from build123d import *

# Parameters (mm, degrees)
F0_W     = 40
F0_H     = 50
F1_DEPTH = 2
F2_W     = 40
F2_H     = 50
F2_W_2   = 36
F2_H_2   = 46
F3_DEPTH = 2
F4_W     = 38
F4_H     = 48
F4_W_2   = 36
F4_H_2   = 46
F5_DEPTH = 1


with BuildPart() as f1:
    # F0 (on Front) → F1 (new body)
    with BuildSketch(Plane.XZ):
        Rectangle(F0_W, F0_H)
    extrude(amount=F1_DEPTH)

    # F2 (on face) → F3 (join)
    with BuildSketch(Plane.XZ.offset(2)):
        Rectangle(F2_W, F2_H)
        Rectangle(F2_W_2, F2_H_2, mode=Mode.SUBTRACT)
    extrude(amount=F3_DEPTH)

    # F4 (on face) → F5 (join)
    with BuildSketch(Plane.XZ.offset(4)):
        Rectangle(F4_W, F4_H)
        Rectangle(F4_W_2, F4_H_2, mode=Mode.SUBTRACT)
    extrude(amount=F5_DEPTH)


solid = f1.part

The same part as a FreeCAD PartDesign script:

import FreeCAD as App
import Part
import Sketcher
Q = App.Units.Quantity


def add_polygon(sketch, points):
    """Adds a closed chain of lines whose ends are joined by coincident constraints."""
    first, n = sketch.GeometryCount, len(points)
    for a, b in zip(points, points[1:] + points[:1]):
        sketch.addGeometry(Part.LineSegment(App.Vector(*a, 0), App.Vector(*b, 0)), False)
    for i in range(n):
        sketch.addConstraint(Sketcher.Constraint("Coincident", first + i, 2, first + (i + 1) % n, 1))

doc = App.newDocument("Part")
params = doc.addObject("Spreadsheet::Sheet", "Params")
for row, (alias, value) in enumerate([
    ("sketch1_width", "40 mm"),
    ("sketch1_height", "50 mm"),
    ("pad1_length", "2 mm"),
    ("sketch2_width", "40 mm"),
    ("sketch2_width2", "36 mm"),
    ("sketch2_height", "50 mm"),
    ("sketch2_height2", "46 mm"),
    ("pad2_length", "2 mm"),
    ("sketch3_width", "38 mm"),
    ("sketch3_width2", "36 mm"),
    ("sketch3_height", "48 mm"),
    ("sketch3_height2", "46 mm"),
    ("pad3_length", "1 mm"),
], start=1):
    params.set(f"A{row}", alias)
    params.set(f"B{row}", "=" + value)
    params.setAlias(f"B{row}", alias)

body = doc.addObject("PartDesign::Body", "Body")

sketch1 = body.newObject("Sketcher::SketchObject", "Sketch")
sketch1.AttachmentSupport = (doc.getObject("XZ_Plane"), [""])
sketch1.MapMode = "FlatFace"
add_polygon(sketch1, [(-20, 25), (-20, -25), (20, -25), (20, 25)])
sketch1.addConstraint([
    Sketcher.Constraint("Vertical", 0),
    Sketcher.Constraint("Horizontal", 1),
    Sketcher.Constraint("Vertical", 2),
    Sketcher.Constraint("Horizontal", 3),
    Sketcher.Constraint("Symmetric", 0, 2, 2, 2, -1, 1),
    Sketcher.Constraint("DistanceX", 1, 1, 1, 2, Q("40 mm")),
    Sketcher.Constraint("DistanceY", 0, 2, 0, 1, Q("50 mm")),
])
sketch1.setExpression("Constraints[9]", "Params.sketch1_width")
sketch1.setExpression("Constraints[10]", "Params.sketch1_height")
pad1 = body.newObject("PartDesign::Pad", "Pad")
pad1.Profile = sketch1
pad1.setExpression("Length", "Params.pad1_length")

sketch2 = body.newObject("Sketcher::SketchObject", "Sketch001")
sketch2.AttachmentSupport = (doc.getObject("XZ_Plane"), [""])
sketch2.MapMode = "FlatFace"
sketch2.AttachmentOffset = App.Placement(App.Vector(0, 0, 2), App.Rotation())
add_polygon(sketch2, [(-20, 25), (-20, -25), (20, -25), (20, 25)])
add_polygon(sketch2, [(18, -23), (-18, -23), (-18, 23), (18, 23)])
sketch2.addConstraint([
    Sketcher.Constraint("Vertical", 0),
    Sketcher.Constraint("Horizontal", 1),
    Sketcher.Constraint("Vertical", 2),
    Sketcher.Constraint("Horizontal", 3),
    Sketcher.Constraint("Horizontal", 4),
    Sketcher.Constraint("Vertical", 5),
    Sketcher.Constraint("Horizontal", 6),
    Sketcher.Constraint("Vertical", 7),
    Sketcher.Constraint("Symmetric", 0, 2, 2, 2, -1, 1),
    Sketcher.Constraint("Symmetric", 4, 2, 6, 2, -1, 1),
    Sketcher.Constraint("DistanceX", 1, 1, 1, 2, Q("40 mm")),
    Sketcher.Constraint("DistanceX", 4, 2, 4, 1, Q("36 mm")),
    Sketcher.Constraint("DistanceY", 0, 2, 0, 1, Q("50 mm")),
    Sketcher.Constraint("DistanceY", 5, 1, 5, 2, Q("46 mm")),
])
sketch2.setExpression("Constraints[18]", "Params.sketch2_width")
sketch2.setExpression("Constraints[19]", "Params.sketch2_width2")
sketch2.setExpression("Constraints[20]", "Params.sketch2_height")
sketch2.setExpression("Constraints[21]", "Params.sketch2_height2")
pad2 = body.newObject("PartDesign::Pad", "Pad001")
pad2.Profile = sketch2
pad2.setExpression("Length", "Params.pad2_length")

sketch3 = body.newObject("Sketcher::SketchObject", "Sketch002")
sketch3.AttachmentSupport = (doc.getObject("XZ_Plane"), [""])
sketch3.MapMode = "FlatFace"
sketch3.AttachmentOffset = App.Placement(App.Vector(0, 0, 4), App.Rotation())
add_polygon(sketch3, [(-19, 24), (-19, -24), (19, -24), (19, 24)])
add_polygon(sketch3, [(18, -23), (-18, -23), (-18, 23), (18, 23)])
sketch3.addConstraint([
    Sketcher.Constraint("Vertical", 0),
    Sketcher.Constraint("Horizontal", 1),
    Sketcher.Constraint("Vertical", 2),
    Sketcher.Constraint("Horizontal", 3),
    Sketcher.Constraint("Horizontal", 4),
    Sketcher.Constraint("Vertical", 5),
    Sketcher.Constraint("Horizontal", 6),
    Sketcher.Constraint("Vertical", 7),
    Sketcher.Constraint("Symmetric", 0, 2, 2, 2, -1, 1),
    Sketcher.Constraint("Symmetric", 4, 2, 6, 2, -1, 1),
    Sketcher.Constraint("DistanceX", 1, 1, 1, 2, Q("38 mm")),
    Sketcher.Constraint("DistanceX", 4, 2, 4, 1, Q("36 mm")),
    Sketcher.Constraint("DistanceY", 0, 2, 0, 1, Q("48 mm")),
    Sketcher.Constraint("DistanceY", 5, 1, 5, 2, Q("46 mm")),
])
sketch3.setExpression("Constraints[18]", "Params.sketch3_width")
sketch3.setExpression("Constraints[19]", "Params.sketch3_width2")
sketch3.setExpression("Constraints[20]", "Params.sketch3_height")
sketch3.setExpression("Constraints[21]", "Params.sketch3_height2")
pad3 = body.newObject("PartDesign::Pad", "Pad002")
pad3.Profile = sketch3
pad3.setExpression("Length", "Params.pad3_length")

doc.recompute()
